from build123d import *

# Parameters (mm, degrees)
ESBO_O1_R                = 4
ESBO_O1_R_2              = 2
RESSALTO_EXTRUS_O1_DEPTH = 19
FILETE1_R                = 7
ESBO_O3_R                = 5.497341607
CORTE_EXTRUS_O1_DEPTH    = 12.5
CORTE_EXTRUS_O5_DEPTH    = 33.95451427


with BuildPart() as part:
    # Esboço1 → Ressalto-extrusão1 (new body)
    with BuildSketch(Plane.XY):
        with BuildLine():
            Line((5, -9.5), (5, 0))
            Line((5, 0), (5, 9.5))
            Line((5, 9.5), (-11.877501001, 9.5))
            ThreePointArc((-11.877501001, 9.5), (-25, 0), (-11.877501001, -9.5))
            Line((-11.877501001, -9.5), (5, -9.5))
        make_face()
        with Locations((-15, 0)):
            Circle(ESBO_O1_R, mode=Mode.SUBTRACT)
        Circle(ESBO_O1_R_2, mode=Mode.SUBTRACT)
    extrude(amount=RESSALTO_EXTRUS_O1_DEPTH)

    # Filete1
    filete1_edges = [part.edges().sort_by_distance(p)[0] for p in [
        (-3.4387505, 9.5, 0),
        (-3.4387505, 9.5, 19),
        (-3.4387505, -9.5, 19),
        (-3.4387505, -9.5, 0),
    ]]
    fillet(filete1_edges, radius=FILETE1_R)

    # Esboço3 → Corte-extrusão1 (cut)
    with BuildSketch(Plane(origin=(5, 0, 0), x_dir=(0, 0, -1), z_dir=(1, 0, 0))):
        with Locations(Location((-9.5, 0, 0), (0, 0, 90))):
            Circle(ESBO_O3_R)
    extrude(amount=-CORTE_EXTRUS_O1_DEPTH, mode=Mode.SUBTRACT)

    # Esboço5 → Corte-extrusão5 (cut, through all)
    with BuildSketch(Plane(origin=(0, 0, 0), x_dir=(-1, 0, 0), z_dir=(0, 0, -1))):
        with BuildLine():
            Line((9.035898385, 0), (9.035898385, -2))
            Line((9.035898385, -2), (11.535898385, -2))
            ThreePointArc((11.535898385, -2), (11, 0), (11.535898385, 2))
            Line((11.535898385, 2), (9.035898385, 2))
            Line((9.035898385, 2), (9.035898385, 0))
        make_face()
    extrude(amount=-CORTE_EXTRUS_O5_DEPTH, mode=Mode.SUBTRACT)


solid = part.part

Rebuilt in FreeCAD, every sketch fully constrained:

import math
import FreeCAD as App
import Part
import Sketcher

V = App.Vector
Q = App.Units.Quantity


def edges_at(feature, points):
    """Names of the edges that pass closest to the given points."""
    edges = feature.Shape.Edges
    near = lambda p: min(range(len(edges)), key=lambda i: edges[i].distToShape(Part.Vertex(*p))[0])
    return sorted({f"Edge{near(p) + 1}" for p in points})

doc = App.newDocument("Part")
body = doc.addObject("PartDesign::Body", "Body")

# Sketch on XY plane
sketch1 = body.newObject("Sketcher::SketchObject", "Sketch")
sketch1.AttachmentSupport = (doc.getObject("XY_Plane"), [""])
sketch1.MapMode = "FlatFace"
sketch1.addGeometry([
    Part.LineSegment(V(5, -9.5, 0), V(5, 9.5, 0)),  # 0
    Part.LineSegment(V(5, 9.5, 0), V(-11.9, 9.5, 0)),  # 1
    Part.ArcOfCircle(Part.Circle(V(-15, 0, 0), V(0, 0, 1), 10), math.radians(72), math.radians(288)),  # 2
    Part.LineSegment(V(-11.9, -9.5, 0), V(5, -9.5, 0)),  # 3
    Part.Circle(V(-15, 0, 0), V(0, 0, 1), 4),  # 4
    Part.Circle(V(0, 0, 0), V(0, 0, 1), 2),  # 5
], False)
sketch1.addConstraint([
    Sketcher.Constraint("Coincident", 0, 2, 1, 1),
    Sketcher.Constraint("Coincident", 1, 2, 2, 1),
    Sketcher.Constraint("Coincident", 2, 2, 3, 1),
    Sketcher.Constraint("Coincident", 3, 2, 0, 1),
    Sketcher.Constraint("Vertical", 0),
    Sketcher.Constraint("Horizontal", 1),
    Sketcher.Constraint("Horizontal", 3),
    Sketcher.Constraint("Coincident", 5, 3, -1, 1),
    Sketcher.Constraint("Coincident", 4, 3, 2, 3),
    Sketcher.Constraint("Symmetric", 1, 2, 2, 2, -1),
    Sketcher.Constraint("Diameter", 4, Q("8 mm")),
    Sketcher.Constraint("Diameter", 5, Q("4 mm")),
    Sketcher.Constraint("Radius", 2, Q("10 mm")),
    Sketcher.Constraint("DistanceY", 0, 1, 0, 2, Q("19 mm")),
    Sketcher.Constraint("DistanceX", 2, 3, -1, 1, Q("15 mm")),
    Sketcher.Constraint("DistanceX", -1, 1, 0, 2, Q("5 mm")),
])
pad1 = body.newObject("PartDesign::Pad", "Pad")
pad1.Profile = sketch1
pad1.Length = 19
doc.recompute()

fillet = body.newObject("PartDesign::Fillet", "Fillet")
fillet.Base = (pad1, edges_at(pad1, [
    (-3.439, 9.5, 0),
    (-3.439, 9.5, 19),
    (-3.439, -9.5, 19),
    (-3.439, -9.5, 0),
]))
fillet.Radius = 7

# Sketch on YZ plane
sketch2 = body.newObject("Sketcher::SketchObject", "Sketch001")
sketch2.AttachmentSupport = (doc.getObject("YZ_Plane"), [""])
sketch2.MapMode = "FlatFace"
sketch2.AttachmentOffset = App.Placement(V(0, 0, 5), App.Rotation())
sketch2.addGeometry(Part.Circle(V(0, 10, 0), V(0, 0, 1), 5), False)
sketch2.addConstraint([
    Sketcher.Constraint("PointOnObject", 0, 3, -2),
    Sketcher.Constraint("DistanceY", -1, 1, 0, 3, Q("9.5 mm")),
    Sketcher.Constraint("Diameter", 0, Q("10.994683 mm")),
])
pocket1 = body.newObject("PartDesign::Pocket", "Pocket")
pocket1.Profile = sketch2
pocket1.Length = 12.5

# Sketch on XY plane
sketch3 = body.newObject("Sketcher::SketchObject", "Sketch002")
sketch3.AttachmentSupport = (doc.getObject("XY_Plane"), [""])
sketch3.MapMode = "FlatFace"
sketch3.addGeometry([
    Part.LineSegment(V(-9, -2, 0), V(-11.5, -2, 0)),
    Part.ArcOfCircle(Part.Circle(V(-15, 0, 0), V(0, 0, 1), 4), math.radians(-30), math.radians(30)),
    Part.LineSegment(V(-11.5, 2, 0), V(-9, 2, 0)),
    Part.LineSegment(V(-9, 2, 0), V(-9, -2, 0)),
], False)
sketch3.addConstraint([
    Sketcher.Constraint("Coincident", 0, 2, 1, 1),
    Sketcher.Constraint("Coincident", 1, 2, 2, 1),
    Sketcher.Constraint("Coincident", 2, 2, 3, 1),
    Sketcher.Constraint("Coincident", 3, 2, 0, 1),
    Sketcher.Constraint("Horizontal", 0),
    Sketcher.Constraint("Horizontal", 2),
    Sketcher.Constraint("Vertical", 3),
    Sketcher.Constraint("Symmetric", 0, 2, 1, 2, -1),
    Sketcher.Constraint("Radius", 1, Q("4 mm")),
    Sketcher.Constraint("DistanceY", 3, 2, 3, 1, Q("4 mm")),
    Sketcher.Constraint("DistanceX", 0, 2, 0, 1, Q("2.5 mm")),
    Sketcher.Constraint("DistanceX", 1, 3, -1, 1, Q("15 mm")),
])
pocket2 = body.newObject("PartDesign::Pocket", "Pocket001")
pocket2.Profile = sketch3
pocket2.Type = "ThroughAll"
pocket2.Reversed = True

doc.recompute()
